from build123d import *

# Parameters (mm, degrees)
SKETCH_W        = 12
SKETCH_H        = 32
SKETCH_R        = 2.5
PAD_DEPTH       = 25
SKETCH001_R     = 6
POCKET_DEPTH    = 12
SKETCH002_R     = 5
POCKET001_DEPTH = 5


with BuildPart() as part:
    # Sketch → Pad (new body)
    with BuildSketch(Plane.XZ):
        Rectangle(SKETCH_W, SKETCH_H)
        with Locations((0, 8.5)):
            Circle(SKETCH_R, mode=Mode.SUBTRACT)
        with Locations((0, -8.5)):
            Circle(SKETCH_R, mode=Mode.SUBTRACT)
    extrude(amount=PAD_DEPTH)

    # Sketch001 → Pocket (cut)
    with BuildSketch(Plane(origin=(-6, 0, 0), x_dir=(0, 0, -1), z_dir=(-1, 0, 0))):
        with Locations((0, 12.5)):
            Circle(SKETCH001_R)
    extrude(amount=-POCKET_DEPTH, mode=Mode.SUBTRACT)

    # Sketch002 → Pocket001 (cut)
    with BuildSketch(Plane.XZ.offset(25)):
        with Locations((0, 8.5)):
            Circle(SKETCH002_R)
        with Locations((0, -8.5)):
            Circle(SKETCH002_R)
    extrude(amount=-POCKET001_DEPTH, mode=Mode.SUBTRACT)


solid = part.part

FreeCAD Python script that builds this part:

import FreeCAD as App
import Part
import Sketcher

doc = App.newDocument("Part")
params = doc.addObject("Spreadsheet::Sheet", "Params")
for row, (alias, value) in enumerate([
    ("sketch1_diameter", "5 mm"),
    ("sketch1_width", "12 mm"),
    ("sketch1_height", "32 mm"),
    ("pad1_length", "25 mm"),
    ("sketch2_diameter", "12 mm"),
    ("pocket1_length", "12 mm"),
    ("sketch3_diameter", "10 mm"),
    ("pocket2_length", "5 mm"),
], start=1):
    params.set(f"A{row}", alias)
    params.set(f"B{row}", "=" + value)
    params.setAlias(f"B{row}", alias)

body = doc.addObject("PartDesign::Body", "Body")

sketch1 = body.newObject("Sketcher::SketchObject", "Sketch")
sketch1.AttachmentSupport = (doc.getObject("XZ_Plane"), [""])
sketch1.MapMode = "FlatFace"
sketch1.addGeometry([
    Part.LineSegment(App.Vector(-6, 16, 0), App.Vector(-6, -16, 0)),
    Part.LineSegment(App.Vector(-6, -16, 0), App.Vector(6, -16, 0)),
    Part.LineSegment(App.Vector(6, -16, 0), App.Vector(6, 16, 0)),
    Part.LineSegment(App.Vector(6, 16, 0), App.Vector(-6, 16, 0)),
    Part.Circle(App.Vector(0, -8.5, 0), App.Vector(0, 0, 1), 2.5),
    Part.Circle(App.Vector(0, 8.5, 0), App.Vector(0, 0, 1), 2.5),
], False)
sketch1.addConstraint([
    Sketcher.Constraint("Coincident", 0, 2, 1, 1),
    Sketcher.Constraint("Coincident", 1, 2, 2, 1),
    Sketcher.Constraint("Coincident", 2, 2, 3, 1),
    Sketcher.Constraint("Coincident", 3, 2, 0, 1),
    Sketcher.Constraint("Vertical", 0),
    Sketcher.Constraint("Horizontal", 1),
    Sketcher.Constraint("Vertical", 2),
    Sketcher.Constraint("Horizontal", 3),
    Sketcher.Constraint("Equal", 4, 5),
    Sketcher.Constraint("Symmetric", 4, 3, 5, 3, -1, 1),
    Sketcher.Constraint("Symmetric", 0, 2, 2, 2, -1, 1),
    Sketcher.Constraint("PointOnObject", 4, 3, -2),
    Sketcher.Constraint("Diameter", 4, 5.0),
    Sketcher.Constraint("DistanceX", 1, 1, 1, 2, 12.0),
    Sketcher.Constraint("DistanceY", 0, 2, 0, 1, 32.0),
    Sketcher.Constraint("DistanceY", 4, 3, 5, 3, 17.0),
])
sketch1.setExpression("Constraints[12]", "Params.sketch1_diameter")
sketch1.setExpression("Constraints[13]", "Params.sketch1_width")
sketch1.setExpression("Constraints[14]", "Params.sketch1_height")
pad1 = body.newObject("PartDesign::Pad", "Pad")
pad1.Profile = sketch1
pad1.setExpression("Length", "Params.pad1_length")

sketch2 = body.newObject("Sketcher::SketchObject", "Sketch001")
sketch2.AttachmentSupport = (doc.getObject("YZ_Plane"), [""])
sketch2.MapMode = "FlatFace"
sketch2.AttachmentOffset = App.Placement(App.Vector(0, 0, -6), App.Rotation())
sketch2.addGeometry(Part.Circle(App.Vector(-12.5, 0, 0), App.Vector(0, 0, 1), 6), False)
sketch2.addConstraint([
    Sketcher.Constraint("PointOnObject", 0, 3, -1),
    Sketcher.Constraint("Diameter", 0, 12.0),
    Sketcher.Constraint("DistanceX", 0, 3, -1, 1, 12.5),
])
sketch2.setExpression("Constraints[1]", "Params.sketch2_diameter")
pocket1 = body.newObject("PartDesign::Pocket", "Pocket")
pocket1.Profile = sketch2
pocket1.setExpression("Length", "Params.pocket1_length")
pocket1.Reversed = True

sketch3 = body.newObject("Sketcher::SketchObject", "Sketch002")
sketch3.AttachmentSupport = (doc.getObject("XZ_Plane"), [""])
sketch3.MapMode = "FlatFace"
sketch3.AttachmentOffset = App.Placement(App.Vector(0, 0, 25), App.Rotation())
sketch3.addGeometry([
    Part.Circle(App.Vector(0, 8.5, 0), App.Vector(0, 0, 1), 5),
    Part.Circle(App.Vector(0, -8.5, 0), App.Vector(0, 0, 1), 5),
], False)
sketch3.addConstraint([
    Sketcher.Constraint("Equal", 0, 1),
    Sketcher.Constraint("Symmetric", 0, 3, 1, 3, -1, 1),
    Sketcher.Constraint("PointOnObject", 0, 3, -2),
    Sketcher.Constraint("Diameter", 0, 10.0),
    Sketcher.Constraint("DistanceY", 1, 3, 0, 3, 17.0),
])
sketch3.setExpression("Constraints[3]", "Params.sketch3_diameter")
pocket2 = body.newObject("PartDesign::Pocket", "Pocket001")
pocket2.Profile = sketch3
pocket2.setExpression("Length", "Params.pocket2_length")

doc.recompute()
